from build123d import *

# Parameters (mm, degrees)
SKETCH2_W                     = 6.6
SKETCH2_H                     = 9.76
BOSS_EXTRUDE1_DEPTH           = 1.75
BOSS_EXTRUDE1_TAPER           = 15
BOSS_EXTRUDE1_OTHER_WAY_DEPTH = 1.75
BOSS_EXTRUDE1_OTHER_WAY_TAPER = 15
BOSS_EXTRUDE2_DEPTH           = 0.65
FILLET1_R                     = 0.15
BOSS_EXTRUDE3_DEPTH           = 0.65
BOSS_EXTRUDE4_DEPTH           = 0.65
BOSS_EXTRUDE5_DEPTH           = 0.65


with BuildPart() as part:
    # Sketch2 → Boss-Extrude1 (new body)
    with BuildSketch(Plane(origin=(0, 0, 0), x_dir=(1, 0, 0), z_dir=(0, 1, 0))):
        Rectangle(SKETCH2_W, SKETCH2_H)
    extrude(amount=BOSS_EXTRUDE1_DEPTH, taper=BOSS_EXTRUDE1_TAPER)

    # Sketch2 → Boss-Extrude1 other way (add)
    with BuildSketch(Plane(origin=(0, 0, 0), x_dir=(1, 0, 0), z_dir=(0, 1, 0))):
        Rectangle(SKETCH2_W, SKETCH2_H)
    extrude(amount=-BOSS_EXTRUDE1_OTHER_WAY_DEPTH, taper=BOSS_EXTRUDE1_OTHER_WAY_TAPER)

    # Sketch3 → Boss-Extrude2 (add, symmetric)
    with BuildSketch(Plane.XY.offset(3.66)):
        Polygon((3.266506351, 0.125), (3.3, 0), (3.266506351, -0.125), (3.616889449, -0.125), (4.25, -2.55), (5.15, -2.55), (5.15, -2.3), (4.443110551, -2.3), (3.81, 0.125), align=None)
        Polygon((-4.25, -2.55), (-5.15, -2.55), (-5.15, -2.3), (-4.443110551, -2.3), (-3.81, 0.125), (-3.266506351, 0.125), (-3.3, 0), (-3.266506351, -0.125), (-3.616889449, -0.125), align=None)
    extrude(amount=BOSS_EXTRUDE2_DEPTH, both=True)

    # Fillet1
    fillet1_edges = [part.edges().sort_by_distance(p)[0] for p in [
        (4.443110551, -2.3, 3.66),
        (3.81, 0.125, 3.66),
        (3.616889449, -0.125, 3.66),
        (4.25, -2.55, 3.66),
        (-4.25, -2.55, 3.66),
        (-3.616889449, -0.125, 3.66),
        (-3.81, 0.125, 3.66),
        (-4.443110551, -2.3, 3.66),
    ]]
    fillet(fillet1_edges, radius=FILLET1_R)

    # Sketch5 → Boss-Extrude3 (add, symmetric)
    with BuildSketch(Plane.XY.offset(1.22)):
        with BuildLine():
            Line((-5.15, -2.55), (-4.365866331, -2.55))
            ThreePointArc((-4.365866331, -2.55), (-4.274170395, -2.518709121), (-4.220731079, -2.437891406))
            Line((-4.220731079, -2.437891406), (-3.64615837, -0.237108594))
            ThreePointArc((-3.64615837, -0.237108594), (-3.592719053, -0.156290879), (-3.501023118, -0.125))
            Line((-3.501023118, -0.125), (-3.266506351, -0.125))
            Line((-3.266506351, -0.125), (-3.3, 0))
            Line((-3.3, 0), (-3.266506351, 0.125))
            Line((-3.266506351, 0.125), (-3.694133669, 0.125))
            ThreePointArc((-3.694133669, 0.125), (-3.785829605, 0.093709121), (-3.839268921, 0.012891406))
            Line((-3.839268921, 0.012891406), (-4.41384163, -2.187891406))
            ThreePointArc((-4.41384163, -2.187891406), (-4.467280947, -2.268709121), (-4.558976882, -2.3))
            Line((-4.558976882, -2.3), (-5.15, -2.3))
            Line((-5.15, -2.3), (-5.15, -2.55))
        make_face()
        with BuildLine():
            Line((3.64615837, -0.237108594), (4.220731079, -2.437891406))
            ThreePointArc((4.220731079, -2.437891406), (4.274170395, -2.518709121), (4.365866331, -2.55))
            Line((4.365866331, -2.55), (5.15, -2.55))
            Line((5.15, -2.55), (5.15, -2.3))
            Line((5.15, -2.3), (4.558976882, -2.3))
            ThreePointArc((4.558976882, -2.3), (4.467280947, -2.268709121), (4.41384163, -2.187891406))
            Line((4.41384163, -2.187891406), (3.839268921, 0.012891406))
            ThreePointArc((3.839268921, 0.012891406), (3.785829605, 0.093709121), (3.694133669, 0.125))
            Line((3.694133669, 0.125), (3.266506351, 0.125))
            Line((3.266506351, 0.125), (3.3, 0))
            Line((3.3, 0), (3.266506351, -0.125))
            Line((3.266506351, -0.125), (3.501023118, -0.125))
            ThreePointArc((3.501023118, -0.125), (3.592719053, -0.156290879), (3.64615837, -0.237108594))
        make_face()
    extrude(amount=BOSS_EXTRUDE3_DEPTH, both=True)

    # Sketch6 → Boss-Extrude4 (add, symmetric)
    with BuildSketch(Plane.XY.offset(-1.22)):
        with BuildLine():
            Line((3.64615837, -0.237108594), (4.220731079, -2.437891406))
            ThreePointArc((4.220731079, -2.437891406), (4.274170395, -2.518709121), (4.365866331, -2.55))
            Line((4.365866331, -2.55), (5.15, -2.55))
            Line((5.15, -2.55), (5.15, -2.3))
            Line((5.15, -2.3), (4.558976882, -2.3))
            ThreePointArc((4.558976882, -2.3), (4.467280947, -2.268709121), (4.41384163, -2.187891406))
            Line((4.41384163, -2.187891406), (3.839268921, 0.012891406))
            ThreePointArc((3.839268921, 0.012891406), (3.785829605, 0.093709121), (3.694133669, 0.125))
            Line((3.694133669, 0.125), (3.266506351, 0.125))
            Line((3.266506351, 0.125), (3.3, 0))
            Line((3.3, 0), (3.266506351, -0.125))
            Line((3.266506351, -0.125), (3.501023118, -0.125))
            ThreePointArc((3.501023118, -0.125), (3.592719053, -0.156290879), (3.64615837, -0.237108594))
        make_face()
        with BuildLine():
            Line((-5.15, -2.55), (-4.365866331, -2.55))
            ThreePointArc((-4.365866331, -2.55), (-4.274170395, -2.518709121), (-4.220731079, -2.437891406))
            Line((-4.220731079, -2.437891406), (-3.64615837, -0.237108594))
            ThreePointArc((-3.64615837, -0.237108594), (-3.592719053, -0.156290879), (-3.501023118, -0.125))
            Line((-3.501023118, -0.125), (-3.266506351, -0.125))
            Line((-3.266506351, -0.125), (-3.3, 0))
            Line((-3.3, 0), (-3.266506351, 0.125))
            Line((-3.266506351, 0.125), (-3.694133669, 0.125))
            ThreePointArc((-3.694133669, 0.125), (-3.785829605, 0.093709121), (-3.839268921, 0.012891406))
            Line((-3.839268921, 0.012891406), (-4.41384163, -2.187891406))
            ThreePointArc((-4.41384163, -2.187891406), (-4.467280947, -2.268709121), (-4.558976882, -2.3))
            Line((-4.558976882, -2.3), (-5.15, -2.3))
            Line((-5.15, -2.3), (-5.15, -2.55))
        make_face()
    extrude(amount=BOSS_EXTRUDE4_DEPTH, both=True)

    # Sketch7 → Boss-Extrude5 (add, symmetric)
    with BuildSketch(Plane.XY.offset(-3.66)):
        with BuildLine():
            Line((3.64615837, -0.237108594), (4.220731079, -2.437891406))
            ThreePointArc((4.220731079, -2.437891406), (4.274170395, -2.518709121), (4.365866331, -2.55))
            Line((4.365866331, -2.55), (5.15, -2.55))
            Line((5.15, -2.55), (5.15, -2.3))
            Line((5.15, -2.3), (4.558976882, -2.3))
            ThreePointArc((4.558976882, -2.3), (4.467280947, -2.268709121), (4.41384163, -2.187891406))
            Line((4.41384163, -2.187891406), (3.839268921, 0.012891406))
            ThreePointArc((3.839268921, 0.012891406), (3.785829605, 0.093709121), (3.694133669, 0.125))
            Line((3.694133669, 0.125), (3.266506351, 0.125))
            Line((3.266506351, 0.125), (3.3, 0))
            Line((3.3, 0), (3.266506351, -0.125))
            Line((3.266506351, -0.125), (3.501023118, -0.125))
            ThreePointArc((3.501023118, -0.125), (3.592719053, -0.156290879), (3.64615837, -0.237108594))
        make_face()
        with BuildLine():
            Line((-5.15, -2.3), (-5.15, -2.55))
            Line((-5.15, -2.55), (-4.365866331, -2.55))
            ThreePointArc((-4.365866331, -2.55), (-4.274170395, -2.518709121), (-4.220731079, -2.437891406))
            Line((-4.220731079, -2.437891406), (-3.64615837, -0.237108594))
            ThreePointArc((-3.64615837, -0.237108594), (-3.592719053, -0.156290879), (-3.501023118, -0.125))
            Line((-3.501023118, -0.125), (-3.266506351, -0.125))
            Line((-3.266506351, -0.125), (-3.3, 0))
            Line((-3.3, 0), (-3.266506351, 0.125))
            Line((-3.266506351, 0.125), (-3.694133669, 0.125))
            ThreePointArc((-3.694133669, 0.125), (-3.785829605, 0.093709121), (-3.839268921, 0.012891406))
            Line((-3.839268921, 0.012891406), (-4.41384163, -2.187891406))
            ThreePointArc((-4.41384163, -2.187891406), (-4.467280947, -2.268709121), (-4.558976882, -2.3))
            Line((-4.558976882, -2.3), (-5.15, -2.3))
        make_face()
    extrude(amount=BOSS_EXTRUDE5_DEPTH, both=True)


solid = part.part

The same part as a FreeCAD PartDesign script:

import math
import FreeCAD as App
import Part
import Sketcher
from FreeCAD import Vector
Q = App.Units.Quantity


def edges_at(feature, points):
    """Names of the edges that pass closest to the given points."""
    edges = feature.Shape.Edges
    near = lambda p: min(range(len(edges)), key=lambda i: edges[i].distToShape(Part.Vertex(*p))[0])
    return sorted({f"Edge{near(p) + 1}" for p in points})


def add_polygon(sketch, points):
    """Adds a closed chain of lines whose ends are joined by coincident constraints."""
    first, n = sketch.GeometryCount, len(points)
    for a, b in zip(points, points[1:] + points[:1]):
        sketch.addGeometry(Part.LineSegment(App.Vector(*a, 0), App.Vector(*b, 0)), False)
    for i in range(n):
        sketch.addConstraint(Sketcher.Constraint("Coincident", first + i, 2, first + (i + 1) % n, 1))

doc = App.newDocument("Part")
body = doc.addObject("PartDesign::Body", "Body")

# Sketch on XZ plane
sketch1 = body.newObject("Sketcher::SketchObject", "Sketch")
sketch1.AttachmentSupport = (doc.getObject("XZ_Plane"), [""])
sketch1.MapMode = "FlatFace"
add_polygon(sketch1, [(-3, -5), (-3, 5), (3, 5), (3, -5)])  # lines 0-3
sketch1.addConstraint([
    Sketcher.Constraint("Vertical", 0),
    Sketcher.Constraint("Horizontal", 1),
    Sketcher.Constraint("Vertical", 2),
    Sketcher.Constraint("Horizontal", 3),
    Sketcher.Constraint("Symmetric", 0, 2, 2, 2, -1, 1),
    Sketcher.Constraint("DistanceX", 1, 1, 1, 2, Q("6.6 mm")),
    Sketcher.Constraint("DistanceY", 0, 1, 0, 2, Q("9.76 mm")),
])
pad1 = body.newObject("PartDesign::Pad", "Pad")
pad1.Profile = sketch1
pad1.Length = 1.75
pad1.Reversed = True
pad1.TaperAngle = -15

# Sketch on XZ plane
sketch2 = body.newObject("Sketcher::SketchObject", "Sketch001")
sketch2.AttachmentSupport = (doc.getObject("XZ_Plane"), [""])
sketch2.MapMode = "FlatFace"
add_polygon(sketch2, [(-3, -5), (-3, 5), (3, 5), (3, -5)])  # lines 0-3
sketch2.addConstraint([
    Sketcher.Constraint("Vertical", 0),
    Sketcher.Constraint("Horizontal", 1),
    Sketcher.Constraint("Vertical", 2),
    Sketcher.Constraint("Horizontal", 3),
    Sketcher.Constraint("Symmetric", 0, 2, 2, 2, -1, 1),
    Sketcher.Constraint("DistanceX", 1, 1, 1, 2, Q("6.6 mm")),
    Sketcher.Constraint("DistanceY", 0, 1, 0, 2, Q("9.76 mm")),
])
pad2 = body.newObject("PartDesign::Pad", "Pad001")
pad2.Profile = sketch2
pad2.Length = 1.75
pad2.TaperAngle = -15

# Sketch on XY plane
sketch3 = body.newObject("Sketcher::SketchObject", "Sketch002")
sketch3.AttachmentSupport = (doc.getObject("XY_Plane"), [""])
sketch3.MapMode = "FlatFace"
sketch3.AttachmentOffset = App.Placement(Vector(0, 0, 3.66), App.Rotation())
add_polygon(sketch3, [(3.27, 0.12), (3.3, 0), (3.27, -0.12), (3.62, -0.12), (4.25, -2.55), (5.15, -2.55), (5.15, -2.3), (4.44, -2.3), (3.81, 0.12)])  # lines 0-8
add_polygon(sketch3, [(-5.15, -2.55), (-4.25, -2.55), (-3.62, -0.12), (-3.27, -0.12), (-3.3, 0), (-3.27, 0.12), (-3.81, 0.12), (-4.44, -2.3), (-5.15, -2.3)])  # lines 9-17
sketch3.addConstraint([
    Sketcher.Constraint("Horizontal", 2),
    Sketcher.Constraint("Horizontal", 4),
    Sketcher.Constraint("Vertical", 5),
    Sketcher.Constraint("Horizontal", 6),
    Sketcher.Constraint("Horizontal", 8),
    Sketcher.Constraint("Horizontal", 9),
    Sketcher.Constraint("Horizontal", 11),
    Sketcher.Constraint("Horizontal", 14),
    Sketcher.Constraint("Horizontal", 16),
    Sketcher.Constraint("Vertical", 17),
    Sketcher.Constraint("Symmetric", 8, 2, 11, 2, -1, 1),
    Sketcher.Constraint("Symmetric", 0, 2, 12, 2, -1, 1),
    Sketcher.Constraint("Symmetric", 1, 2, 13, 2, -1, 1),
    Sketcher.Constraint("Symmetric", 3, 2, 9, 2, -2),
    Sketcher.Constraint("Symmetric", 2, 2, 10, 2, -2),
    Sketcher.Constraint("Symmetric", 6, 2, 15, 2, -2),
    Sketcher.Constraint("PointOnObject", 0, 2, -1),
    Sketcher.Constraint("Parallel", 3, 7),
    Sketcher.Constraint("Parallel", 10, 15),
    Sketcher.Constraint("Vertical", 1, 2, 8, 2),
    Sketcher.Constraint("Equal", 4, 9),
    Sketcher.Constraint("Equal", 3, 7),
    Sketcher.Constraint("Angle", 0, Q("-75 deg")),
    Sketcher.Constraint("DistanceX", 4, 1, 4, 2, Q("0.9 mm")),
    Sketcher.Constraint("DistanceY", 5, 1, 5, 2, Q("0.25 mm")),
    Sketcher.Constraint("DistanceX", -1, 1, 0, 2, Q("3.3 mm")),
    Sketcher.Constraint("DistanceY", 5, 2, -1, 1, Q("2.3 mm")),
    Sketcher.Constraint("DistanceX", -1, 1, 3, 2, Q("4.25 mm")),
    Sketcher.Constraint("DistanceX", -1, 1, 7, 2, Q("3.81 mm")),
    Sketcher.Constraint("DistanceX", 6, 2, 6, 1, Q("0.706889 mm")),
])
pad3 = body.newObject("PartDesign::Pad", "Pad002")
pad3.Profile = sketch3
pad3.Length = 1.3
pad3.Midplane = True
doc.recompute()

fillet = body.newObject("PartDesign::Fillet", "Fillet")
fillet.Base = (pad3, edges_at(pad3, [
    (4.443, -2.3, 3.66),
    (3.81, 0.125, 3.66),
    (3.617, -0.125, 3.66),
    (4.25, -2.55, 3.66),
    (-4.25, -2.55, 3.66),
    (-3.617, -0.125, 3.66),
    (-3.81, 0.125, 3.66),
    (-4.443, -2.3, 3.66),
]))
fillet.Radius = 0.15

# Sketch on XY plane
sketch4 = body.newObject("Sketcher::SketchObject", "Sketch003")
sketch4.AttachmentSupport = (doc.getObject("XY_Plane"), [""])
sketch4.MapMode = "FlatFace"
sketch4.AttachmentOffset = App.Placement(Vector(0, 0, 1.22), App.Rotation())
sketch4.addGeometry([
    Part.LineSegment(Vector(-5.15, -2.55, 0), Vector(-4.37, -2.55, 0)),  # 0
    Part.ArcOfCircle(Part.Circle(Vector(-4.37, -2.4, 0), Vector(0, 0, 1), 0.15), math.radians(-90), math.radians(-15)),  # 1
    Part.LineSegment(Vector(-4.22, -2.44, 0), Vector(-3.65, -0.24, 0)),  # 2
    Part.ArcOfCircle(Part.Circle(Vector(-3.5, -0.28, 0), Vector(0, 0, 1), 0.15), math.radians(90), math.radians(165)),  # 3
    Part.LineSegment(Vector(-3.5, -0.12, 0), Vector(-3.27, -0.12, 0)),  # 4
    Part.LineSegment(Vector(-3.27, -0.12, 0), Vector(-3.3, 0, 0)),  # 5
    Part.LineSegment(Vector(-3.3, 0, 0), Vector(-3.27, 0.12, 0)),  # 6
    Part.LineSegment(Vector(-3.27, 0.12, 0), Vector(-3.69, 0.12, 0)),  # 7
    Part.ArcOfCircle(Part.Circle(Vector(-3.69, -0.02, 0), Vector(0, 0, 1), 0.15), math.radians(90), math.radians(165)),  # 8
    Part.LineSegment(Vector(-3.84, 0.01, 0), Vector(-4.41, -2.19, 0)),  # 9
    Part.ArcOfCircle(Part.Circle(Vector(-4.56, -2.15, 0), Vector(0, 0, 1), 0.15), math.radians(-90), math.radians(-15)),  # 10
    Part.LineSegment(Vector(-4.56, -2.3, 0), Vector(-5.15, -2.3, 0)),  # 11
    Part.LineSegment(Vector(-5.15, -2.3, 0), Vector(-5.15, -2.55, 0)),  # 12
    Part.LineSegment(Vector(3.65, -0.24, 0), Vector(4.22, -2.44, 0)),  # 13
    Part.ArcOfCircle(Part.Circle(Vector(4.37, -2.4, 0), Vector(0, 0, 1), 0.15), math.radians(-165), math.radians(-90)),  # 14
    Part.LineSegment(Vector(4.37, -2.55, 0), Vector(5.15, -2.55, 0)),  # 15
    Part.LineSegment(Vector(5.15, -2.55, 0), Vector(5.15, -2.3, 0)),  # 16
    Part.LineSegment(Vector(5.15, -2.3, 0), Vector(4.56, -2.3, 0)),  # 17
    Part.ArcOfCircle(Part.Circle(Vector(4.56, -2.15, 0), Vector(0, 0, 1), 0.15), math.radians(-165), math.radians(-90)),  # 18
    Part.LineSegment(Vector(4.41, -2.19, 0), Vector(3.84, 0.01, 0)),  # 19
    Part.ArcOfCircle(Part.Circle(Vector(3.69, -0.02, 0), Vector(0, 0, 1), 0.15), math.radians(15), math.radians(90)),  # 20
    Part.LineSegment(Vector(3.69, 0.12, 0), Vector(3.27, 0.12, 0)),  # 21
    Part.LineSegment(Vector(3.27, 0.12, 0), Vector(3.3, 0, 0)),  # 22
    Part.LineSegment(Vector(3.3, 0, 0), Vector(3.27, -0.12, 0)),  # 23
    Part.LineSegment(Vector(3.27, -0.12, 0), Vector(3.5, -0.12, 0)),  # 24
    Part.ArcOfCircle(Part.Circle(Vector(3.5, -0.28, 0), Vector(0, 0, 1), 0.15), math.radians(15), math.radians(90)),  # 25
], False)
sketch4.addConstraint([
    Sketcher.Constraint("Tangent", 0, 2, 1, 1),
    Sketcher.Constraint("Tangent", 1, 2, 2, 1),
    Sketcher.Constraint("Tangent", 2, 2, 3, 2),
    Sketcher.Constraint("Tangent", 3, 1, 4, 1),
    Sketcher.Constraint("Coincident", 4, 2, 5, 1),
    Sketcher.Constraint("Coincident", 5, 2, 6, 1),
    Sketcher.Constraint("Coincident", 6, 2, 7, 1),
    Sketcher.Constraint("Tangent", 7, 2, 8, 1),
    Sketcher.Constraint("Tangent", 8, 2, 9, 1),
    Sketcher.Constraint("Tangent", 9, 2, 10, 2),
    Sketcher.Constraint("Tangent", 10, 1, 11, 1),
    Sketcher.Constraint("Coincident", 11, 2, 12, 1),
    Sketcher.Constraint("Coincident", 12, 2, 0, 1),
    Sketcher.Constraint("Tangent", 13, 2, 14, 1),
    Sketcher.Constraint("Tangent", 14, 2, 15, 1),
    Sketcher.Constraint("Coincident", 15, 2, 16, 1),
    Sketcher.Constraint("Coincident", 16, 2, 17, 1),
    Sketcher.Constraint("Tangent", 17, 2, 18, 2),
    Sketcher.Constraint("Tangent", 18, 1, 19, 1),
    Sketcher.Constraint("Tangent", 19, 2, 20, 1),
    Sketcher.Constraint("Tangent", 20, 2, 21, 1),
    Sketcher.Constraint("Coincident", 21, 2, 22, 1),
    Sketcher.Constraint("Coincident", 22, 2, 23, 1),
    Sketcher.Constraint("Coincident", 23, 2, 24, 1),
    Sketcher.Constraint("Tangent", 24, 2, 25, 2),
    Sketcher.Constraint("Tangent", 25, 1, 13, 1),
    Sketcher.Constraint("Horizontal", 0),
    Sketcher.Constraint("Horizontal", 4),
    Sketcher.Constraint("Horizontal", 7),
    Sketcher.Constraint("Horizontal", 11),
    Sketcher.Constraint("Vertical", 12),
    Sketcher.Constraint("Horizontal", 15),
    Sketcher.Constraint("Vertical", 16),
    Sketcher.Constraint("Horizontal", 17),
    Sketcher.Constraint("Horizontal", 21),
    Sketcher.Constraint("Horizontal", 24),
    Sketcher.Constraint("Equal", 1, 3),
    Sketcher.Constraint("Equal", 3, 8),
    Sketcher.Constraint("Equal", 8, 10),
    Sketcher.Constraint("Equal", 10, 14),
    Sketcher.Constraint("Equal", 14, 18),
    Sketcher.Constraint("Equal", 18, 20),
    Sketcher.Constraint("Equal", 20, 25),
    Sketcher.Constraint("Symmetric", 4, 2, 21, 2, -1, 1),
    Sketcher.Constraint("Symmetric", 5, 2, 22, 2, -1, 1),
    Sketcher.Constraint("Symmetric", 6, 2, 23, 2, -1, 1),
    Sketcher.Constraint("Symmetric", 1, 3, 14, 3, -2),
    Sketcher.Constraint("Symmetric", 10, 3, 18, 3, -2),
    Sketcher.Constraint("Symmetric", 8, 3, 20, 3, -2),
    Sketcher.Constraint("PointOnObject", 5, 2, -1),
    Sketcher.Constraint("Parallel", 2, 9),
    Sketcher.Constraint("Parallel", 13, 19),
    Sketcher.Constraint("Vertical", 4, 2, 6, 2),
    Sketcher.Constraint("Equal", 0, 15),
    Sketcher.Constraint("Equal", 2, 9),
    Sketcher.Constraint("Angle", 5, Q("105 deg")),
    Sketcher.Constraint("Radius", 1, Q("0.15 mm")),
    Sketcher.Constraint("DistanceY", 12, 2, 12, 1, Q("0.25 mm")),
    Sketcher.Constraint("DistanceY", 1, 3, -1, 1, Q("2.4 mm")),
    Sketcher.Constraint("DistanceX", 5, 2, -1, 1, Q("3.3 mm")),
    Sketcher.Constraint("DistanceX", 11, 2, -1, 1, Q("5.15 mm")),
    Sketcher.Constraint("DistanceX", 8, 3, 14, 3, Q("8.06 mm")),
    Sketcher.Constraint("Distance", 2, Q("2.27455 mm")),
    Sketcher.Constraint("DistanceX", 0, 1, 0, 2, Q("0.784134 mm")),
])
pad4 = body.newObject("PartDesign::Pad", "Pad003")
pad4.Profile = sketch4
pad4.Length = 1.3
pad4.Midplane = True

# Sketch on XY plane
sketch5 = body.newObject("Sketcher::SketchObject", "Sketch004")
sketch5.AttachmentSupport = (doc.getObject("XY_Plane"), [""])
sketch5.MapMode = "FlatFace"
sketch5.AttachmentOffset = App.Placement(Vector(0, 0, -1.22), App.Rotation())
sketch5.addGeometry([
    Part.LineSegment(Vector(3.65, -0.24, 0), Vector(4.22, -2.44, 0)),  # 0
    Part.ArcOfCircle(Part.Circle(Vector(4.37, -2.4, 0), Vector(0, 0, 1), 0.15), math.radians(-165), math.radians(-90)),  # 1
    Part.LineSegment(Vector(4.37, -2.55, 0), Vector(5.15, -2.55, 0)),  # 2
    Part.LineSegment(Vector(5.15, -2.55, 0), Vector(5.15, -2.3, 0)),  # 3
    Part.LineSegment(Vector(5.15, -2.3, 0), Vector(4.56, -2.3, 0)),  # 4
    Part.ArcOfCircle(Part.Circle(Vector(4.56, -2.15, 0), Vector(0, 0, 1), 0.15), math.radians(-165), math.radians(-90)),  # 5
    Part.LineSegment(Vector(4.41, -2.19, 0), Vector(3.84, 0.01, 0)),  # 6
    Part.ArcOfCircle(Part.Circle(Vector(3.69, -0.02, 0), Vector(0, 0, 1), 0.15), math.radians(15), math.radians(90)),  # 7
    Part.LineSegment(Vector(3.69, 0.12, 0), Vector(3.27, 0.12, 0)),  # 8
    Part.LineSegment(Vector(3.27, 0.12, 0), Vector(3.3, 0, 0)),  # 9
    Part.LineSegment(Vector(3.3, 0, 0), Vector(3.27, -0.12, 0)),  # 10
    Part.LineSegment(Vector(3.27, -0.12, 0), Vector(3.5, -0.12, 0)),  # 11
    Part.ArcOfCircle(Part.Circle(Vector(3.5, -0.28, 0), Vector(0, 0, 1), 0.15), math.radians(15), math.radians(90)),  # 12
    Part.LineSegment(Vector(-5.15, -2.55, 0), Vector(-4.37, -2.55, 0)),  # 13
    Part.ArcOfCircle(Part.Circle(Vector(-4.37, -2.4, 0), Vector(0, 0, 1), 0.15), math.radians(-90), math.radians(-15)),  # 14
    Part.LineSegment(Vector(-4.22, -2.44, 0), Vector(-3.65, -0.24, 0)),  # 15
    Part.ArcOfCircle(Part.Circle(Vector(-3.5, -0.28, 0), Vector(0, 0, 1), 0.15), math.radians(90), math.radians(165)),  # 16
    Part.LineSegment(Vector(-3.5, -0.12, 0), Vector(-3.27, -0.12, 0)),  # 17
    Part.LineSegment(Vector(-3.27, -0.12, 0), Vector(-3.3, 0, 0)),  # 18
    Part.LineSegment(Vector(-3.3, 0, 0), Vector(-3.27, 0.12, 0)),  # 19
    Part.LineSegment(Vector(-3.27, 0.12, 0), Vector(-3.69, 0.12, 0)),  # 20
    Part.ArcOfCircle(Part.Circle(Vector(-3.69, -0.02, 0), Vector(0, 0, 1), 0.15), math.radians(90), math.radians(165)),  # 21
    Part.LineSegment(Vector(-3.84, 0.01, 0), Vector(-4.41, -2.19, 0)),  # 22
    Part.ArcOfCircle(Part.Circle(Vector(-4.56, -2.15, 0), Vector(0, 0, 1), 0.15), math.radians(-90), math.radians(-15)),  # 23
    Part.LineSegment(Vector(-4.56, -2.3, 0), Vector(-5.15, -2.3, 0)),  # 24
    Part.LineSegment(Vector(-5.15, -2.3, 0), Vector(-5.15, -2.55, 0)),  # 25
], False)
sketch5.addConstraint([
    Sketcher.Constraint("Tangent", 0, 2, 1, 1),
    Sketcher.Constraint("Tangent", 1, 2, 2, 1),
    Sketcher.Constraint("Coincident", 2, 2, 3, 1),
    Sketcher.Constraint("Coincident", 3, 2, 4, 1),
    Sketcher.Constraint("Tangent", 4, 2, 5, 2),
    Sketcher.Constraint("Tangent", 5, 1, 6, 1),
    Sketcher.Constraint("Tangent", 6, 2, 7, 1),
    Sketcher.Constraint("Tangent", 7, 2, 8, 1),
    Sketcher.Constraint("Coincident", 8, 2, 9, 1),
    Sketcher.Constraint("Coincident", 9, 2, 10, 1),
    Sketcher.Constraint("Coincident", 10, 2, 11, 1),
    Sketcher.Constraint("Tangent", 11, 2, 12, 2),
    Sketcher.Constraint("Tangent", 12, 1, 0, 1),
    Sketcher.Constraint("Tangent", 13, 2, 14, 1),
    Sketcher.Constraint("Tangent", 14, 2, 15, 1),
    Sketcher.Constraint("Tangent", 15, 2, 16, 2),
    Sketcher.Constraint("Tangent", 16, 1, 17, 1),
    Sketcher.Constraint("Coincident", 17, 2, 18, 1),
    Sketcher.Constraint("Coincident", 18, 2, 19, 1),
    Sketcher.Constraint("Coincident", 19, 2, 20, 1),
    Sketcher.Constraint("Tangent", 20, 2, 21, 1),
    Sketcher.Constraint("Tangent", 21, 2, 22, 1),
    Sketcher.Constraint("Tangent", 22, 2, 23, 2),
    Sketcher.Constraint("Tangent", 23, 1, 24, 1),
    Sketcher.Constraint("Coincident", 24, 2, 25, 1),
    Sketcher.Constraint("Coincident", 25, 2, 13, 1),
    Sketcher.Constraint("Horizontal", 2),
    Sketcher.Constraint("Vertical", 3),
    Sketcher.Constraint("Horizontal", 4),
    Sketcher.Constraint("Horizontal", 8),
    Sketcher.Constraint("Horizontal", 11),
    Sketcher.Constraint("Horizontal", 13),
    Sketcher.Constraint("Horizontal", 17),
    Sketcher.Constraint("Horizontal", 20),
    Sketcher.Constraint("Horizontal", 24),
    Sketcher.Constraint("Vertical", 25),
    Sketcher.Constraint("Equal", 1, 5),
    Sketcher.Constraint("Equal", 5, 7),
    Sketcher.Constraint("Equal", 7, 12),
    Sketcher.Constraint("Equal", 12, 14),
    Sketcher.Constraint("Equal", 14, 16),
    Sketcher.Constraint("Equal", 16, 21),
    Sketcher.Constraint("Equal", 21, 23),
    Sketcher.Constraint("Symmetric", 8, 2, 17, 2, -1, 1),
    Sketcher.Constraint("Symmetric", 9, 2, 18, 2, -1, 1),
    Sketcher.Constraint("Symmetric", 10, 2, 19, 2, -1, 1),
    Sketcher.Constraint("Symmetric", 1, 3, 14, 3, -2),
    Sketcher.Constraint("Symmetric", 12, 3, 16, 3, -2),
    Sketcher.Constraint("Symmetric", 5, 3, 23, 3, -2),
    Sketcher.Constraint("PointOnObject", 9, 2, -1),
    Sketcher.Constraint("Parallel", 0, 6),
    Sketcher.Constraint("Parallel", 15, 22),
    Sketcher.Constraint("Vertical", 8, 2, 10, 2),
    Sketcher.Constraint("Equal", 2, 13),
    Sketcher.Constraint("Equal", 0, 6),
    Sketcher.Constraint("Angle", 9, Q("-75 deg")),
    Sketcher.Constraint("Radius", 1, Q("0.15 mm")),
    Sketcher.Constraint("DistanceY", 3, 1, 3, 2, Q("0.25 mm")),
    Sketcher.Constraint("DistanceY", 1, 3, -1, 1, Q("2.4 mm")),
    Sketcher.Constraint("DistanceX", -1, 1, 9, 2, Q("3.3 mm")),
    Sketcher.Constraint("DistanceX", -1, 1, 2, 2, Q("5.15 mm")),
    Sketcher.Constraint("DistanceX", 14, 3, 7, 3, Q("8.06 mm")),
    Sketcher.Constraint("Distance", 0, Q("2.27455 mm")),
    Sketcher.Constraint("DistanceX", 2, 1, 2, 2, Q("0.784134 mm")),
])
pad5 = body.newObject("PartDesign::Pad", "Pad004")
pad5.Profile = sketch5
pad5.Length = 1.3
pad5.Midplane = True

# Sketch on XY plane
sketch6 = body.newObject("Sketcher::SketchObject", "Sketch005")
sketch6.AttachmentSupport = (doc.getObject("XY_Plane"), [""])
sketch6.MapMode = "FlatFace"
sketch6.AttachmentOffset = App.Placement(Vector(0, 0, -3.66), App.Rotation())
sketch6.addGeometry([
    Part.LineSegment(Vector(3.65, -0.24, 0), Vector(4.22, -2.44, 0)),  # 0
    Part.ArcOfCircle(Part.Circle(Vector(4.37, -2.4, 0), Vector(0, 0, 1), 0.15), math.radians(-165), math.radians(-90)),  # 1
    Part.LineSegment(Vector(4.37, -2.55, 0), Vector(5.15, -2.55, 0)),  # 2
    Part.LineSegment(Vector(5.15, -2.55, 0), Vector(5.15, -2.3, 0)),  # 3
    Part.LineSegment(Vector(5.15, -2.3, 0), Vector(4.56, -2.3, 0)),  # 4
    Part.ArcOfCircle(Part.Circle(Vector(4.56, -2.15, 0), Vector(0, 0, 1), 0.15), math.radians(-165), math.radians(-90)),  # 5
    Part.LineSegment(Vector(4.41, -2.19, 0), Vector(3.84, 0.01, 0)),  # 6
    Part.ArcOfCircle(Part.Circle(Vector(3.69, -0.02, 0), Vector(0, 0, 1), 0.15), math.radians(15), math.radians(90)),  # 7
    Part.LineSegment(Vector(3.69, 0.12, 0), Vector(3.27, 0.12, 0)),  # 8
    Part.LineSegment(Vector(3.27, 0.12, 0), Vector(3.3, 0, 0)),  # 9
    Part.LineSegment(Vector(3.3, 0, 0), Vector(3.27, -0.12, 0)),  # 10
    Part.LineSegment(Vector(3.27, -0.12, 0), Vector(3.5, -0.12, 0)),  # 11
    Part.ArcOfCircle(Part.Circle(Vector(3.5, -0.28, 0), Vector(0, 0, 1), 0.15), math.radians(15), math.radians(90)),  # 12
    Part.LineSegment(Vector(-5.15, -2.3, 0), Vector(-5.15, -2.55, 0)),  # 13
    Part.LineSegment(Vector(-5.15, -2.55, 0), Vector(-4.37, -2.55, 0)),  # 14
    Part.ArcOfCircle(Part.Circle(Vector(-4.37, -2.4, 0), Vector(0, 0, 1), 0.15), math.radians(-90), math.radians(-15)),  # 15
    Part.LineSegment(Vector(-4.22, -2.44, 0), Vector(-3.65, -0.24, 0)),  # 16
    Part.ArcOfCircle(Part.Circle(Vector(-3.5, -0.28, 0), Vector(0, 0, 1), 0.15), math.radians(90), math.radians(165)),  # 17
    Part.LineSegment(Vector(-3.5, -0.12, 0), Vector(-3.27, -0.12, 0)),  # 18
    Part.LineSegment(Vector(-3.27, -0.12, 0), Vector(-3.3, 0, 0)),  # 19
    Part.LineSegment(Vector(-3.3, 0, 0), Vector(-3.27, 0.12, 0)),  # 20
    Part.LineSegment(Vector(-3.27, 0.12, 0), Vector(-3.69, 0.12, 0)),  # 21
    Part.ArcOfCircle(Part.Circle(Vector(-3.69, -0.02, 0), Vector(0, 0, 1), 0.15), math.radians(90), math.radians(165)),  # 22
    Part.LineSegment(Vector(-3.84, 0.01, 0), Vector(-4.41, -2.19, 0)),  # 23
    Part.ArcOfCircle(Part.Circle(Vector(-4.56, -2.15, 0), Vector(0, 0, 1), 0.15), math.radians(-90), math.radians(-15)),  # 24
    Part.LineSegment(Vector(-4.56, -2.3, 0), Vector(-5.15, -2.3, 0)),  # 25
], False)
sketch6.addConstraint([
    Sketcher.Constraint("Tangent", 0, 2, 1, 1),
    Sketcher.Constraint("Tangent", 1, 2, 2, 1),
    Sketcher.Constraint("Coincident", 2, 2, 3, 1),
    Sketcher.Constraint("Coincident", 3, 2, 4, 1),
    Sketcher.Constraint("Tangent", 4, 2, 5, 2),
    Sketcher.Constraint("Tangent", 5, 1, 6, 1),
    Sketcher.Constraint("Tangent", 6, 2, 7, 1),
    Sketcher.Constraint("Tangent", 7, 2, 8, 1),
    Sketcher.Constraint("Coincident", 8, 2, 9, 1),
    Sketcher.Constraint("Coincident", 9, 2, 10, 1),
    Sketcher.Constraint("Coincident", 10, 2, 11, 1),
    Sketcher.Constraint("Tangent", 11, 2, 12, 2),
    Sketcher.Constraint("Tangent", 12, 1, 0, 1),
    Sketcher.Constraint("Coincident", 13, 2, 14, 1),
    Sketcher.Constraint("Tangent", 14, 2, 15, 1),
    Sketcher.Constraint("Tangent", 15, 2, 16, 1),
    Sketcher.Constraint("Tangent", 16, 2, 17, 2),
    Sketcher.Constraint("Tangent", 17, 1, 18, 1),
    Sketcher.Constraint("Coincident", 18, 2, 19, 1),
    Sketcher.Constraint("Coincident", 19, 2, 20, 1),
    Sketcher.Constraint("Coincident", 20, 2, 21, 1),
    Sketcher.Constraint("Tangent", 21, 2, 22, 1),
    Sketcher.Constraint("Tangent", 22, 2, 23, 1),
    Sketcher.Constraint("Tangent", 23, 2, 24, 2),
    Sketcher.Constraint("Tangent", 24, 1, 25, 1),
    Sketcher.Constraint("Coincident", 25, 2, 13, 1),
    Sketcher.Constraint("Horizontal", 2),
    Sketcher.Constraint("Vertical", 3),
    Sketcher.Constraint("Horizontal", 4),
    Sketcher.Constraint("Horizontal", 8),
    Sketcher.Constraint("Horizontal", 11),
    Sketcher.Constraint("Vertical", 13),
    Sketcher.Constraint("Horizontal", 14),
    Sketcher.Constraint("Horizontal", 18),
    Sketcher.Constraint("Horizontal", 21),
    Sketcher.Constraint("Horizontal", 25),
    Sketcher.Constraint("Equal", 1, 5),
    Sketcher.Constraint("Equal", 5, 7),
    Sketcher.Constraint("Equal", 7, 12),
    Sketcher.Constraint("Equal", 12, 15),
    Sketcher.Constraint("Equal", 15, 17),
    Sketcher.Constraint("Equal", 17, 22),
    Sketcher.Constraint("Equal", 22, 24),
    Sketcher.Constraint("Symmetric", 8, 2, 18, 2, -1, 1),
    Sketcher.Constraint("Symmetric", 9, 2, 19, 2, -1, 1),
    Sketcher.Constraint("Symmetric", 10, 2, 20, 2, -1, 1),
    Sketcher.Constraint("Symmetric", 1, 3, 15, 3, -2),
    Sketcher.Constraint("Symmetric", 12, 3, 17, 3, -2),
    Sketcher.Constraint("Symmetric", 5, 3, 24, 3, -2),
    Sketcher.Constraint("PointOnObject", 9, 2, -1),
    Sketcher.Constraint("Parallel", 0, 6),
    Sketcher.Constraint("Parallel", 16, 23),
    Sketcher.Constraint("Vertical", 8, 2, 10, 2),
    Sketcher.Constraint("Equal", 2, 14),
    Sketcher.Constraint("Equal", 0, 6),
    Sketcher.Constraint("Angle", 9, Q("-75 deg")),
    Sketcher.Constraint("Radius", 1, Q("0.15 mm")),
    Sketcher.Constraint("DistanceY", 3, 1, 3, 2, Q("0.25 mm")),
    Sketcher.Constraint("DistanceY", 1, 3, -1, 1, Q("2.4 mm")),
    Sketcher.Constraint("DistanceX", -1, 1, 9, 2, Q("3.3 mm")),
    Sketcher.Constraint("DistanceX", -1, 1, 2, 2, Q("5.15 mm")),
    Sketcher.Constraint("DistanceX", 15, 3, 7, 3, Q("8.06 mm")),
    Sketcher.Constraint("Distance", 0, Q("2.27455 mm")),
    Sketcher.Constraint("DistanceX", 2, 1, 2, 2, Q("0.784134 mm")),
])
pad6 = body.newObject("PartDesign::Pad", "Pad005")
pad6.Profile = sketch6
pad6.Length = 1.3
pad6.Midplane = True

doc.recompute()
